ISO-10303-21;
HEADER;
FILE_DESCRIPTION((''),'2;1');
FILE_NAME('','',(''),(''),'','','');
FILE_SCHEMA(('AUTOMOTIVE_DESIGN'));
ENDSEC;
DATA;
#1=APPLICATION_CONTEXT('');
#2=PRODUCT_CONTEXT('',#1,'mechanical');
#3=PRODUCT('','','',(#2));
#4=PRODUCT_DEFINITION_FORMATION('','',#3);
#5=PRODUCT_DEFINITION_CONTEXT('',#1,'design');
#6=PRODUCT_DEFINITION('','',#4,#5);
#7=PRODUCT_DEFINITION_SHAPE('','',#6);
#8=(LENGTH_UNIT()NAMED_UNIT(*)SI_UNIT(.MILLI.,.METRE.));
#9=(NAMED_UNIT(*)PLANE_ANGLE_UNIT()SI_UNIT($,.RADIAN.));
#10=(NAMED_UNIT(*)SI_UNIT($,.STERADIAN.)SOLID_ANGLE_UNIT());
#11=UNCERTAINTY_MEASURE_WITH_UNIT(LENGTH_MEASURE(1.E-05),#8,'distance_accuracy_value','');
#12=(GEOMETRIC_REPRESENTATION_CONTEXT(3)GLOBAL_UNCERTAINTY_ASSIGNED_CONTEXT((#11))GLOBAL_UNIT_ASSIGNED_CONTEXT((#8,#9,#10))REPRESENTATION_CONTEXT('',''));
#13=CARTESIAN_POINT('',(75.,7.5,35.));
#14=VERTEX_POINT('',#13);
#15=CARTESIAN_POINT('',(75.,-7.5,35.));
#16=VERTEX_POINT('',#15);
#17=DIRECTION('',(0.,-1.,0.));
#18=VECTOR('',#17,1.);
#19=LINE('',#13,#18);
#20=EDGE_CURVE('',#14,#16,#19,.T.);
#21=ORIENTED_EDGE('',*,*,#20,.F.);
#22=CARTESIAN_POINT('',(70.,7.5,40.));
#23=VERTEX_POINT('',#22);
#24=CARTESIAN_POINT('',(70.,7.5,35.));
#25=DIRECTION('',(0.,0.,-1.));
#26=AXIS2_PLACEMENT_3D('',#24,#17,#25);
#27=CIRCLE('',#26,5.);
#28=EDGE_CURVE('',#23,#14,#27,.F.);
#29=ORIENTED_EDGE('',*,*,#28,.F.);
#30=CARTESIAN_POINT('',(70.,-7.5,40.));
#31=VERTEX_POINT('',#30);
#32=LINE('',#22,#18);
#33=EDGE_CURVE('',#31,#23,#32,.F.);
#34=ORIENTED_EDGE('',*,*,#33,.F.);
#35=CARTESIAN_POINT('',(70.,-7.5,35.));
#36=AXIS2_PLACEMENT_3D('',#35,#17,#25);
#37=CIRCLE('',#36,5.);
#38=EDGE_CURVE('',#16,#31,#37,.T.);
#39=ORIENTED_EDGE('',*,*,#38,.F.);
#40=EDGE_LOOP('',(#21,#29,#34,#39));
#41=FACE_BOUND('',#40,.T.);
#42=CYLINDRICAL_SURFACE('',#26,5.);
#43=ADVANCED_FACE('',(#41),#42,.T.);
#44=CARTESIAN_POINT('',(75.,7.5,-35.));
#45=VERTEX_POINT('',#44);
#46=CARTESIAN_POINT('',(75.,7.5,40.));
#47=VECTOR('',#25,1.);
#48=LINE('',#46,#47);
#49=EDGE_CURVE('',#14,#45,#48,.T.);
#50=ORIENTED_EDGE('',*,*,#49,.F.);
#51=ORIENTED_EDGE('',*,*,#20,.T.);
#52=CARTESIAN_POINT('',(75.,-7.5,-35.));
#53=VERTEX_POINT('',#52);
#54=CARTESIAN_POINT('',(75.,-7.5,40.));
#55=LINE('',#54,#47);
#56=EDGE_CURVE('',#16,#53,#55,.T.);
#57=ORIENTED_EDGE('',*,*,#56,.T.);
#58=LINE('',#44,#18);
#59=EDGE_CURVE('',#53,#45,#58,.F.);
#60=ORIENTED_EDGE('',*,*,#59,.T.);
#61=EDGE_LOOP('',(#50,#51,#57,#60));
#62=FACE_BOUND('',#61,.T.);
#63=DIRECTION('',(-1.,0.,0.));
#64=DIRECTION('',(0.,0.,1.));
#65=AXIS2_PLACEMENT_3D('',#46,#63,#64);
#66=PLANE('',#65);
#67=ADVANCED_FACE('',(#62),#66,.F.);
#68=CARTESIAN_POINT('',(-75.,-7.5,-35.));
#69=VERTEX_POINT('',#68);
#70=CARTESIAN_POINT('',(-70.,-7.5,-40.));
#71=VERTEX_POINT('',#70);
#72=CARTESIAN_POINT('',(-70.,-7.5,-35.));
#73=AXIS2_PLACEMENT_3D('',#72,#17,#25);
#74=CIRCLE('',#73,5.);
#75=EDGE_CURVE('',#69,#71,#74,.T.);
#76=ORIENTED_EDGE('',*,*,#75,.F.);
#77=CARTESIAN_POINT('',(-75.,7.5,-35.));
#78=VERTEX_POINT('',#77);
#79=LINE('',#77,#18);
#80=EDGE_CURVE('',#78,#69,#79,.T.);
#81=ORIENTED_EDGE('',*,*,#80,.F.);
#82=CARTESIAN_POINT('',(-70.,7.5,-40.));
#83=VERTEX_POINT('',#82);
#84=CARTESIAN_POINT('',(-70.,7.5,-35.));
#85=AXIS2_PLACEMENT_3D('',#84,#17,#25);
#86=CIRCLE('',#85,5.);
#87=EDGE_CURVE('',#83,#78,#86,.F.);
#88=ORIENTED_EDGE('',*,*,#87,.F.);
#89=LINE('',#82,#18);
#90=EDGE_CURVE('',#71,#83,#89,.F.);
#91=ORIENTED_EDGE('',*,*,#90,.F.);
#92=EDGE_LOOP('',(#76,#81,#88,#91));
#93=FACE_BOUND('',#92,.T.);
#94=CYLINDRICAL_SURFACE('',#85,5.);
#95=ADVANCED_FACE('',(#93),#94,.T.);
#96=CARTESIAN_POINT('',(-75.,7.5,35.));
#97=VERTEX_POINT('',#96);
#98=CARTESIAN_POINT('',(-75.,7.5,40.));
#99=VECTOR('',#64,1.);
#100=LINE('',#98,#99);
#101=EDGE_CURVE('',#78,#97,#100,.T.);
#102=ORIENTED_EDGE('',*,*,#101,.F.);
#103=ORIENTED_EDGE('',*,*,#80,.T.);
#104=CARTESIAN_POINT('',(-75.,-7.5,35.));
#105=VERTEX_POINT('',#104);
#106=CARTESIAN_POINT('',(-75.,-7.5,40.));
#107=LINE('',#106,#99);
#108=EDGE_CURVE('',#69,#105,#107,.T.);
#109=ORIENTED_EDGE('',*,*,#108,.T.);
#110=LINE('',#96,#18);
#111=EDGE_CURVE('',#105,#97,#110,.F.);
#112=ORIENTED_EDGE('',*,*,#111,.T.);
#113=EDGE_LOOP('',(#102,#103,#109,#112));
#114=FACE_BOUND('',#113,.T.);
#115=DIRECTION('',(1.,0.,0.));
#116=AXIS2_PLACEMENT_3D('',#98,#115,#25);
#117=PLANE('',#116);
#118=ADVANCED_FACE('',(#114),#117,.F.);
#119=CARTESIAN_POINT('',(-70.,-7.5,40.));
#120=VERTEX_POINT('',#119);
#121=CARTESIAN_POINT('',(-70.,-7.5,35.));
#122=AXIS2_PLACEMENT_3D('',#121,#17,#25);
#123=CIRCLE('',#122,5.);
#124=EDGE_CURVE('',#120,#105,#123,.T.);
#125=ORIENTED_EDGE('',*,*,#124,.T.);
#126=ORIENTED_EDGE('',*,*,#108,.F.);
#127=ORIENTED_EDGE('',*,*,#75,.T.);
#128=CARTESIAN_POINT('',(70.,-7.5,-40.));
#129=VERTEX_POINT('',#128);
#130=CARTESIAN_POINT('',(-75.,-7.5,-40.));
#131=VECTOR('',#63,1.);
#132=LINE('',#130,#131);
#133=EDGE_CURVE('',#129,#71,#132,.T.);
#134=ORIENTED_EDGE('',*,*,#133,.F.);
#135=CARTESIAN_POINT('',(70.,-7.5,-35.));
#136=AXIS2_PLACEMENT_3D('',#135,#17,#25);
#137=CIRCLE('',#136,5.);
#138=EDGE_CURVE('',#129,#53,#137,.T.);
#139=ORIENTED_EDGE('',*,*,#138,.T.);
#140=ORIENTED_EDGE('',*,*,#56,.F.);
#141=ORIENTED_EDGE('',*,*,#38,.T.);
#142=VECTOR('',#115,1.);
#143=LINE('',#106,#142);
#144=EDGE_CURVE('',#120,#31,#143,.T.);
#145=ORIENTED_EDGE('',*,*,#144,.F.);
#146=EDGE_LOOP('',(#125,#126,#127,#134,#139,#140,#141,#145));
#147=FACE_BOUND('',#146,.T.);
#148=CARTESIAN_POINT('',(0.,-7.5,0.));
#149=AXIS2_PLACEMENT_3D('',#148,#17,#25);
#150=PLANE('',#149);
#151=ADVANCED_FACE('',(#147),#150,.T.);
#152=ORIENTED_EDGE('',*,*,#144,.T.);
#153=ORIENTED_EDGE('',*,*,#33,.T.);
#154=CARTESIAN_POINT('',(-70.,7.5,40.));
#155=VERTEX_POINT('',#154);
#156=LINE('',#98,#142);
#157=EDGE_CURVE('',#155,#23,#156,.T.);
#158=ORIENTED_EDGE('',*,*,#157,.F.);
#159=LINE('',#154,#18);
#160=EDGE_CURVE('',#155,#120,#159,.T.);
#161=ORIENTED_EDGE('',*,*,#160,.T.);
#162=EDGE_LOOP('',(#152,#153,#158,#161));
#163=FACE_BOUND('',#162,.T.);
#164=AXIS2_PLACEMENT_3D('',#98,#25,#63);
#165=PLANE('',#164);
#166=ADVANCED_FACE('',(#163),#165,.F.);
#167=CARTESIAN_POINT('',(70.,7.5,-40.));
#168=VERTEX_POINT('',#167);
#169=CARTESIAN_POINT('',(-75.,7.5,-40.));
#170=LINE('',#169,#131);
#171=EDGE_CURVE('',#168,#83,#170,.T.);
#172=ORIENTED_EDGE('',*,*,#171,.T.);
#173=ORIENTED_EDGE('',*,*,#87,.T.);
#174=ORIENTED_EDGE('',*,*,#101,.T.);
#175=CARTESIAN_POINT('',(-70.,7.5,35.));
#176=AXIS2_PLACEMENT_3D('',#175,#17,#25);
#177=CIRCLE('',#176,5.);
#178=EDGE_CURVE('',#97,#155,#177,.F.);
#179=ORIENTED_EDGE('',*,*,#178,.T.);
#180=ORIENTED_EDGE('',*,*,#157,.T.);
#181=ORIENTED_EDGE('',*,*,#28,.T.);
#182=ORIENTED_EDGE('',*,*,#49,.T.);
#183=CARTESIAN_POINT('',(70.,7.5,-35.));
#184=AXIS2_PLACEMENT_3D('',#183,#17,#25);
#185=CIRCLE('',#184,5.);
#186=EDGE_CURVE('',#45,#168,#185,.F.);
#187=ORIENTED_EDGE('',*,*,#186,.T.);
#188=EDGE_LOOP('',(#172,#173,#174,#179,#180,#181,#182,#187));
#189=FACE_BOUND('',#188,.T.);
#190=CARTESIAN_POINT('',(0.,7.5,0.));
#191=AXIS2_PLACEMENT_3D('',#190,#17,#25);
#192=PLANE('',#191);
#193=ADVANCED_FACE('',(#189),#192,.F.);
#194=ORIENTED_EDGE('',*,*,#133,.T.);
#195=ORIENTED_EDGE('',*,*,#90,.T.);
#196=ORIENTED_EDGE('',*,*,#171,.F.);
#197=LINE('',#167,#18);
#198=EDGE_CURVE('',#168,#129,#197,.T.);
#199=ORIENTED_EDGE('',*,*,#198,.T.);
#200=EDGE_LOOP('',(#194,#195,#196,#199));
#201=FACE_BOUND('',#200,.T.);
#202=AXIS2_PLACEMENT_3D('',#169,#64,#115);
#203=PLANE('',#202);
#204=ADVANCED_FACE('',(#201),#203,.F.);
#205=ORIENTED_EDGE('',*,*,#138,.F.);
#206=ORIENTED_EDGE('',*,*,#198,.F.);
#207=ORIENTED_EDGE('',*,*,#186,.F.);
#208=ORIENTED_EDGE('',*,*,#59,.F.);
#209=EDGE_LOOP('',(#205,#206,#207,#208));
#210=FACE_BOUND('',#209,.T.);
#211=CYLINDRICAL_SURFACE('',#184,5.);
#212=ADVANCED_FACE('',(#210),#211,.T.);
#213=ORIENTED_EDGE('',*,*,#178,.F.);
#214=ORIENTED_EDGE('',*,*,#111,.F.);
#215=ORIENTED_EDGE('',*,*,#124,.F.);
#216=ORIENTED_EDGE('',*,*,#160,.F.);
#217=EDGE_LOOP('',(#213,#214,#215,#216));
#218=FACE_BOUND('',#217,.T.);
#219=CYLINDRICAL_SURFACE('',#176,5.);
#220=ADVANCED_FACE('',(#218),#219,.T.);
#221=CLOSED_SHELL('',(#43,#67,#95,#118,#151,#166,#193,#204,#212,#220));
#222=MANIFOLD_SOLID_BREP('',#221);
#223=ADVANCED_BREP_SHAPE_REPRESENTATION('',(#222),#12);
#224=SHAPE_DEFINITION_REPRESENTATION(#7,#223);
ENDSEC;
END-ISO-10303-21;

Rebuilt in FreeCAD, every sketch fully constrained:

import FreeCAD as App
import Part
import Sketcher

V = App.Vector
Q = App.Units.Quantity


def edges_at(feature, points):
    """Names of the edges that pass closest to the given points."""
    edges = feature.Shape.Edges
    near = lambda p: min(range(len(edges)), key=lambda i: edges[i].distToShape(Part.Vertex(*p))[0])
    return sorted({f"Edge{near(p) + 1}" for p in points})


def add_polygon(sketch, points):
    """Adds a closed chain of lines whose ends are joined by coincident constraints."""
    first, n = sketch.GeometryCount, len(points)
    for a, b in zip(points, points[1:] + points[:1]):
        sketch.addGeometry(Part.LineSegment(App.Vector(*a, 0), App.Vector(*b, 0)), False)
    for i in range(n):
        sketch.addConstraint(Sketcher.Constraint("Coincident", first + i, 2, first + (i + 1) % n, 1))

doc = App.newDocument("Part")
body = doc.addObject("PartDesign::Body", "Body")

# Sketch on XZ plane
sketch1 = body.newObject("Sketcher::SketchObject", "Sketch")
sketch1.AttachmentSupport = (doc.getObject("XZ_Plane"), [""])
sketch1.MapMode = "FlatFace"
add_polygon(sketch1, [(-75, -40), (-75, 40), (75, 40), (75, -40)])  # lines 0-3
sketch1.addConstraint([
    Sketcher.Constraint("Vertical", 0),
    Sketcher.Constraint("Horizontal", 1),
    Sketcher.Constraint("Vertical", 2),
    Sketcher.Constraint("Horizontal", 3),
    Sketcher.Constraint("Symmetric", 0, 2, 2, 2, -1, 1),
    Sketcher.Constraint("DistanceX", 1, 1, 1, 2, Q("150 mm")),
    Sketcher.Constraint("DistanceY", 0, 1, 0, 2, Q("80 mm")),
])
pad1 = body.newObject("PartDesign::Pad", "Pad")
pad1.Profile = sketch1
pad1.Length = 15
pad1.Midplane = True
doc.recompute()

fillet = body.newObject("PartDesign::Fillet", "Fillet")
fillet.Base = (pad1, edges_at(pad1, [
    (75, 0, 40),
    (-75, 0, 40),
    (-75, 0, -40),
    (75, 0, -40),
]))
fillet.Radius = 5

doc.recompute()
